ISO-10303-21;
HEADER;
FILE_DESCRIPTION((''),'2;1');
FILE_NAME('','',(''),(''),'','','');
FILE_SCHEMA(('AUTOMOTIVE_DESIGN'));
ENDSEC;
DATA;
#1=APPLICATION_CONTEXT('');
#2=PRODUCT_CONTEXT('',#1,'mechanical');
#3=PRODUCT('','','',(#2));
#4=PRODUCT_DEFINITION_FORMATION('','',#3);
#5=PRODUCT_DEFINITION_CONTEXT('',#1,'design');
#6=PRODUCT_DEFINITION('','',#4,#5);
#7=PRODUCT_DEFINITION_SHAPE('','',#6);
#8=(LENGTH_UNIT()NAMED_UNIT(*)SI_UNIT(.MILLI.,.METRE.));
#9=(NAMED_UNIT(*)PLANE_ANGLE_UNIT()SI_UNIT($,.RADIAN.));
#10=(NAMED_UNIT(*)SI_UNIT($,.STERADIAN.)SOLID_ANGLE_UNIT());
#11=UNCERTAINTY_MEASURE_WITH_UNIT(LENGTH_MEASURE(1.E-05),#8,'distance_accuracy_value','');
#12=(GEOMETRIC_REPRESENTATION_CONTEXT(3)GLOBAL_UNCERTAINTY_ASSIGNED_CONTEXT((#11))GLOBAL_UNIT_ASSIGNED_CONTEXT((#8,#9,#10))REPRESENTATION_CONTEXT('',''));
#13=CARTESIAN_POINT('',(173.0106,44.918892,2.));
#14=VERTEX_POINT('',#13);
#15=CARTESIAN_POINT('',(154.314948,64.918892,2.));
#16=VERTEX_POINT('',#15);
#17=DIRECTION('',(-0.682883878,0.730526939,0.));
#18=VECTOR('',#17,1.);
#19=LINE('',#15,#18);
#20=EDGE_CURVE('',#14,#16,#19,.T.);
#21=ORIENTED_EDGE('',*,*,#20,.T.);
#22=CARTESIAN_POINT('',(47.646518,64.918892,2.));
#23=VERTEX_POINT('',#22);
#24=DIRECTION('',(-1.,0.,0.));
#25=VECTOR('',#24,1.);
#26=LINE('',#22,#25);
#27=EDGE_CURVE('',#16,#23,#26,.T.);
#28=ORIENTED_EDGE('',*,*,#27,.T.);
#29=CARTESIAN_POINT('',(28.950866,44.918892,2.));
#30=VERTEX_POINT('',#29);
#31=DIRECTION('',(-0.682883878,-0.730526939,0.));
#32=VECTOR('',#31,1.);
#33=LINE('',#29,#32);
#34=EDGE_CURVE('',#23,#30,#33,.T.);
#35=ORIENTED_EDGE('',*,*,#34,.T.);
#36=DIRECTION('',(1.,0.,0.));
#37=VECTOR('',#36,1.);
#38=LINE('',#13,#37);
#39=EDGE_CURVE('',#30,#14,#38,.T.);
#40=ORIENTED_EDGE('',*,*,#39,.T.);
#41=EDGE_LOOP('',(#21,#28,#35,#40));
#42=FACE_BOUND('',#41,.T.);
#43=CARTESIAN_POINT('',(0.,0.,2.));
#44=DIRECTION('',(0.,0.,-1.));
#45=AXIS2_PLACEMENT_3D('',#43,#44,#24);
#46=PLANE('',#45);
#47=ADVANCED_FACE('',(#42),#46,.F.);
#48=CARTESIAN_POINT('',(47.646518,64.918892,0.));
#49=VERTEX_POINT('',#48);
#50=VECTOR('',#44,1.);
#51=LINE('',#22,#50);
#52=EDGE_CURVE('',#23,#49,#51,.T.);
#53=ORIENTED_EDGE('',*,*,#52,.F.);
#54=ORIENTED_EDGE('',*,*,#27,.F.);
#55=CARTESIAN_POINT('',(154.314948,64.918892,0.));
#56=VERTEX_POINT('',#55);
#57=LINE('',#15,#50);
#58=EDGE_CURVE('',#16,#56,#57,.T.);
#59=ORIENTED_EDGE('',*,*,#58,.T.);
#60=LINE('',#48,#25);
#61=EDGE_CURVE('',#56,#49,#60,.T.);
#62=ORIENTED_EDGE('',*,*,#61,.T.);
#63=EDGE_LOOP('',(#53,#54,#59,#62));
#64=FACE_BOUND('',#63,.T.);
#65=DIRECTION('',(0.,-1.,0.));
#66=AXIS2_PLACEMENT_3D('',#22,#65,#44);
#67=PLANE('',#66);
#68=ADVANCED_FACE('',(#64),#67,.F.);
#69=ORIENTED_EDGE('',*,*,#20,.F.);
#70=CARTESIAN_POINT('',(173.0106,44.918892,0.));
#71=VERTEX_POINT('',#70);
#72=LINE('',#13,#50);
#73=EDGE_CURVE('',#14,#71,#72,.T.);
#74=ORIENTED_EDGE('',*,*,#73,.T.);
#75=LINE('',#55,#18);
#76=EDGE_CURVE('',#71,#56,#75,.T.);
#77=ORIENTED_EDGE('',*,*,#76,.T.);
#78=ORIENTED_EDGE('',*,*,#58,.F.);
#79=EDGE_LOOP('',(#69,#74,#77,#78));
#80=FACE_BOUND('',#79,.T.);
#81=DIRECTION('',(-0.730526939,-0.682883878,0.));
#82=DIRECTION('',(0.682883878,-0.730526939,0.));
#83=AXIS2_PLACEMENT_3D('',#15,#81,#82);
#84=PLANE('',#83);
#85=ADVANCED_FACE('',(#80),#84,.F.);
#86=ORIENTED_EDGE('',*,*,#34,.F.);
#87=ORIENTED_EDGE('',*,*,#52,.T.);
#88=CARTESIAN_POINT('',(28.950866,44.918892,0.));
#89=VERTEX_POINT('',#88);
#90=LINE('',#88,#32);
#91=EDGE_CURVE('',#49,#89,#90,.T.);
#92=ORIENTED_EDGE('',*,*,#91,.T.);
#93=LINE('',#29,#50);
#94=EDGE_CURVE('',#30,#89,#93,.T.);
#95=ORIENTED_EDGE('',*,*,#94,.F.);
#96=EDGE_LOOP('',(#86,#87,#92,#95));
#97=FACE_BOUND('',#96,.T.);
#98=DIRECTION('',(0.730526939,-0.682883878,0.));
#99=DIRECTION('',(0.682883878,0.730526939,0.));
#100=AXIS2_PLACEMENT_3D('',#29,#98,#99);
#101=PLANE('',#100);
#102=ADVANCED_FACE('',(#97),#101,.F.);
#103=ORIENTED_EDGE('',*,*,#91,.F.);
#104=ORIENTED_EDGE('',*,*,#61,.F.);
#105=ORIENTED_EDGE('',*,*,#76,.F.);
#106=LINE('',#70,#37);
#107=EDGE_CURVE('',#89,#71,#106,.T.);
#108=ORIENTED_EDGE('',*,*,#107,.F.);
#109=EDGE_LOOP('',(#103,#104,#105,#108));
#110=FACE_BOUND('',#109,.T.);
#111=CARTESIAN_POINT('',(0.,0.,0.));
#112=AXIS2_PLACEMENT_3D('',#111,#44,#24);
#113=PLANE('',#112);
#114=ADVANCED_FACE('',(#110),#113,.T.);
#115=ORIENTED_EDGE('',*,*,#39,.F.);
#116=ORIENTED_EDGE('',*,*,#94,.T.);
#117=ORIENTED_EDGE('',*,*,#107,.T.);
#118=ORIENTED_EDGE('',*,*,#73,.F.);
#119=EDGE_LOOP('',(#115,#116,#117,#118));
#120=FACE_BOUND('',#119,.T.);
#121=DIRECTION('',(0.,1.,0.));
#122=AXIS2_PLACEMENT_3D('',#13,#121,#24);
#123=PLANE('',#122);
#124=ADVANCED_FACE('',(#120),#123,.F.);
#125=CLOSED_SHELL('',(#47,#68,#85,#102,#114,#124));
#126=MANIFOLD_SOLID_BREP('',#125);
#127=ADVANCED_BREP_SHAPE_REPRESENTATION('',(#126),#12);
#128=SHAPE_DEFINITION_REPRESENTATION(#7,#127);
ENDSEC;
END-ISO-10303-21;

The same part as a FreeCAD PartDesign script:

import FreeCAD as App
import Part
import Sketcher


def add_polygon(sketch, points):
    """Adds a closed chain of lines whose ends are joined by coincident constraints."""
    first, n = sketch.GeometryCount, len(points)
    for a, b in zip(points, points[1:] + points[:1]):
        sketch.addGeometry(Part.LineSegment(App.Vector(*a, 0), App.Vector(*b, 0)), False)
    for i in range(n):
        sketch.addConstraint(Sketcher.Constraint("Coincident", first + i, 2, first + (i + 1) % n, 1))

doc = App.newDocument("Part")
body = doc.addObject("PartDesign::Body", "Body")

sketch1 = doc.addObject("Sketcher::SketchObject", "Sketch")
body.addObject(sketch1)
sketch1.AttachmentSupport = (doc.XY_Plane, [""])
sketch1.MapMode = "FlatFace"
add_polygon(sketch1, [(154.314948, 64.918892), (47.646518, 64.918892), (28.950866, 44.918892), (173.010601, 44.918892)])
sketch1.addConstraint(Sketcher.Constraint("Horizontal", 0))
sketch1.addConstraint(Sketcher.Constraint("Horizontal", 2))
sketch1.addConstraint(Sketcher.Constraint("Equal", 1, 3))
sketch1.addConstraint(Sketcher.Constraint("DistanceY", 1, 2, 0, 2, 20.0))
sketch1.addConstraint(Sketcher.Constraint("Distance", 1, 27.377498))
sketch1.addConstraint(Sketcher.Constraint("DistanceX", 0, 2, 0, 1, 106.66843))
sketch1.addConstraint(Sketcher.Constraint("DistanceX", -1, 1, 2, 2, 173.010601))
sketch1.addConstraint(Sketcher.Constraint("DistanceY", -1, 1, 0, 2, 64.918892))
pad1 = doc.addObject("PartDesign::Pad", "Pad")
body.addObject(pad1)
pad1.Profile = sketch1
pad1.Length = 2

doc.recompute()
